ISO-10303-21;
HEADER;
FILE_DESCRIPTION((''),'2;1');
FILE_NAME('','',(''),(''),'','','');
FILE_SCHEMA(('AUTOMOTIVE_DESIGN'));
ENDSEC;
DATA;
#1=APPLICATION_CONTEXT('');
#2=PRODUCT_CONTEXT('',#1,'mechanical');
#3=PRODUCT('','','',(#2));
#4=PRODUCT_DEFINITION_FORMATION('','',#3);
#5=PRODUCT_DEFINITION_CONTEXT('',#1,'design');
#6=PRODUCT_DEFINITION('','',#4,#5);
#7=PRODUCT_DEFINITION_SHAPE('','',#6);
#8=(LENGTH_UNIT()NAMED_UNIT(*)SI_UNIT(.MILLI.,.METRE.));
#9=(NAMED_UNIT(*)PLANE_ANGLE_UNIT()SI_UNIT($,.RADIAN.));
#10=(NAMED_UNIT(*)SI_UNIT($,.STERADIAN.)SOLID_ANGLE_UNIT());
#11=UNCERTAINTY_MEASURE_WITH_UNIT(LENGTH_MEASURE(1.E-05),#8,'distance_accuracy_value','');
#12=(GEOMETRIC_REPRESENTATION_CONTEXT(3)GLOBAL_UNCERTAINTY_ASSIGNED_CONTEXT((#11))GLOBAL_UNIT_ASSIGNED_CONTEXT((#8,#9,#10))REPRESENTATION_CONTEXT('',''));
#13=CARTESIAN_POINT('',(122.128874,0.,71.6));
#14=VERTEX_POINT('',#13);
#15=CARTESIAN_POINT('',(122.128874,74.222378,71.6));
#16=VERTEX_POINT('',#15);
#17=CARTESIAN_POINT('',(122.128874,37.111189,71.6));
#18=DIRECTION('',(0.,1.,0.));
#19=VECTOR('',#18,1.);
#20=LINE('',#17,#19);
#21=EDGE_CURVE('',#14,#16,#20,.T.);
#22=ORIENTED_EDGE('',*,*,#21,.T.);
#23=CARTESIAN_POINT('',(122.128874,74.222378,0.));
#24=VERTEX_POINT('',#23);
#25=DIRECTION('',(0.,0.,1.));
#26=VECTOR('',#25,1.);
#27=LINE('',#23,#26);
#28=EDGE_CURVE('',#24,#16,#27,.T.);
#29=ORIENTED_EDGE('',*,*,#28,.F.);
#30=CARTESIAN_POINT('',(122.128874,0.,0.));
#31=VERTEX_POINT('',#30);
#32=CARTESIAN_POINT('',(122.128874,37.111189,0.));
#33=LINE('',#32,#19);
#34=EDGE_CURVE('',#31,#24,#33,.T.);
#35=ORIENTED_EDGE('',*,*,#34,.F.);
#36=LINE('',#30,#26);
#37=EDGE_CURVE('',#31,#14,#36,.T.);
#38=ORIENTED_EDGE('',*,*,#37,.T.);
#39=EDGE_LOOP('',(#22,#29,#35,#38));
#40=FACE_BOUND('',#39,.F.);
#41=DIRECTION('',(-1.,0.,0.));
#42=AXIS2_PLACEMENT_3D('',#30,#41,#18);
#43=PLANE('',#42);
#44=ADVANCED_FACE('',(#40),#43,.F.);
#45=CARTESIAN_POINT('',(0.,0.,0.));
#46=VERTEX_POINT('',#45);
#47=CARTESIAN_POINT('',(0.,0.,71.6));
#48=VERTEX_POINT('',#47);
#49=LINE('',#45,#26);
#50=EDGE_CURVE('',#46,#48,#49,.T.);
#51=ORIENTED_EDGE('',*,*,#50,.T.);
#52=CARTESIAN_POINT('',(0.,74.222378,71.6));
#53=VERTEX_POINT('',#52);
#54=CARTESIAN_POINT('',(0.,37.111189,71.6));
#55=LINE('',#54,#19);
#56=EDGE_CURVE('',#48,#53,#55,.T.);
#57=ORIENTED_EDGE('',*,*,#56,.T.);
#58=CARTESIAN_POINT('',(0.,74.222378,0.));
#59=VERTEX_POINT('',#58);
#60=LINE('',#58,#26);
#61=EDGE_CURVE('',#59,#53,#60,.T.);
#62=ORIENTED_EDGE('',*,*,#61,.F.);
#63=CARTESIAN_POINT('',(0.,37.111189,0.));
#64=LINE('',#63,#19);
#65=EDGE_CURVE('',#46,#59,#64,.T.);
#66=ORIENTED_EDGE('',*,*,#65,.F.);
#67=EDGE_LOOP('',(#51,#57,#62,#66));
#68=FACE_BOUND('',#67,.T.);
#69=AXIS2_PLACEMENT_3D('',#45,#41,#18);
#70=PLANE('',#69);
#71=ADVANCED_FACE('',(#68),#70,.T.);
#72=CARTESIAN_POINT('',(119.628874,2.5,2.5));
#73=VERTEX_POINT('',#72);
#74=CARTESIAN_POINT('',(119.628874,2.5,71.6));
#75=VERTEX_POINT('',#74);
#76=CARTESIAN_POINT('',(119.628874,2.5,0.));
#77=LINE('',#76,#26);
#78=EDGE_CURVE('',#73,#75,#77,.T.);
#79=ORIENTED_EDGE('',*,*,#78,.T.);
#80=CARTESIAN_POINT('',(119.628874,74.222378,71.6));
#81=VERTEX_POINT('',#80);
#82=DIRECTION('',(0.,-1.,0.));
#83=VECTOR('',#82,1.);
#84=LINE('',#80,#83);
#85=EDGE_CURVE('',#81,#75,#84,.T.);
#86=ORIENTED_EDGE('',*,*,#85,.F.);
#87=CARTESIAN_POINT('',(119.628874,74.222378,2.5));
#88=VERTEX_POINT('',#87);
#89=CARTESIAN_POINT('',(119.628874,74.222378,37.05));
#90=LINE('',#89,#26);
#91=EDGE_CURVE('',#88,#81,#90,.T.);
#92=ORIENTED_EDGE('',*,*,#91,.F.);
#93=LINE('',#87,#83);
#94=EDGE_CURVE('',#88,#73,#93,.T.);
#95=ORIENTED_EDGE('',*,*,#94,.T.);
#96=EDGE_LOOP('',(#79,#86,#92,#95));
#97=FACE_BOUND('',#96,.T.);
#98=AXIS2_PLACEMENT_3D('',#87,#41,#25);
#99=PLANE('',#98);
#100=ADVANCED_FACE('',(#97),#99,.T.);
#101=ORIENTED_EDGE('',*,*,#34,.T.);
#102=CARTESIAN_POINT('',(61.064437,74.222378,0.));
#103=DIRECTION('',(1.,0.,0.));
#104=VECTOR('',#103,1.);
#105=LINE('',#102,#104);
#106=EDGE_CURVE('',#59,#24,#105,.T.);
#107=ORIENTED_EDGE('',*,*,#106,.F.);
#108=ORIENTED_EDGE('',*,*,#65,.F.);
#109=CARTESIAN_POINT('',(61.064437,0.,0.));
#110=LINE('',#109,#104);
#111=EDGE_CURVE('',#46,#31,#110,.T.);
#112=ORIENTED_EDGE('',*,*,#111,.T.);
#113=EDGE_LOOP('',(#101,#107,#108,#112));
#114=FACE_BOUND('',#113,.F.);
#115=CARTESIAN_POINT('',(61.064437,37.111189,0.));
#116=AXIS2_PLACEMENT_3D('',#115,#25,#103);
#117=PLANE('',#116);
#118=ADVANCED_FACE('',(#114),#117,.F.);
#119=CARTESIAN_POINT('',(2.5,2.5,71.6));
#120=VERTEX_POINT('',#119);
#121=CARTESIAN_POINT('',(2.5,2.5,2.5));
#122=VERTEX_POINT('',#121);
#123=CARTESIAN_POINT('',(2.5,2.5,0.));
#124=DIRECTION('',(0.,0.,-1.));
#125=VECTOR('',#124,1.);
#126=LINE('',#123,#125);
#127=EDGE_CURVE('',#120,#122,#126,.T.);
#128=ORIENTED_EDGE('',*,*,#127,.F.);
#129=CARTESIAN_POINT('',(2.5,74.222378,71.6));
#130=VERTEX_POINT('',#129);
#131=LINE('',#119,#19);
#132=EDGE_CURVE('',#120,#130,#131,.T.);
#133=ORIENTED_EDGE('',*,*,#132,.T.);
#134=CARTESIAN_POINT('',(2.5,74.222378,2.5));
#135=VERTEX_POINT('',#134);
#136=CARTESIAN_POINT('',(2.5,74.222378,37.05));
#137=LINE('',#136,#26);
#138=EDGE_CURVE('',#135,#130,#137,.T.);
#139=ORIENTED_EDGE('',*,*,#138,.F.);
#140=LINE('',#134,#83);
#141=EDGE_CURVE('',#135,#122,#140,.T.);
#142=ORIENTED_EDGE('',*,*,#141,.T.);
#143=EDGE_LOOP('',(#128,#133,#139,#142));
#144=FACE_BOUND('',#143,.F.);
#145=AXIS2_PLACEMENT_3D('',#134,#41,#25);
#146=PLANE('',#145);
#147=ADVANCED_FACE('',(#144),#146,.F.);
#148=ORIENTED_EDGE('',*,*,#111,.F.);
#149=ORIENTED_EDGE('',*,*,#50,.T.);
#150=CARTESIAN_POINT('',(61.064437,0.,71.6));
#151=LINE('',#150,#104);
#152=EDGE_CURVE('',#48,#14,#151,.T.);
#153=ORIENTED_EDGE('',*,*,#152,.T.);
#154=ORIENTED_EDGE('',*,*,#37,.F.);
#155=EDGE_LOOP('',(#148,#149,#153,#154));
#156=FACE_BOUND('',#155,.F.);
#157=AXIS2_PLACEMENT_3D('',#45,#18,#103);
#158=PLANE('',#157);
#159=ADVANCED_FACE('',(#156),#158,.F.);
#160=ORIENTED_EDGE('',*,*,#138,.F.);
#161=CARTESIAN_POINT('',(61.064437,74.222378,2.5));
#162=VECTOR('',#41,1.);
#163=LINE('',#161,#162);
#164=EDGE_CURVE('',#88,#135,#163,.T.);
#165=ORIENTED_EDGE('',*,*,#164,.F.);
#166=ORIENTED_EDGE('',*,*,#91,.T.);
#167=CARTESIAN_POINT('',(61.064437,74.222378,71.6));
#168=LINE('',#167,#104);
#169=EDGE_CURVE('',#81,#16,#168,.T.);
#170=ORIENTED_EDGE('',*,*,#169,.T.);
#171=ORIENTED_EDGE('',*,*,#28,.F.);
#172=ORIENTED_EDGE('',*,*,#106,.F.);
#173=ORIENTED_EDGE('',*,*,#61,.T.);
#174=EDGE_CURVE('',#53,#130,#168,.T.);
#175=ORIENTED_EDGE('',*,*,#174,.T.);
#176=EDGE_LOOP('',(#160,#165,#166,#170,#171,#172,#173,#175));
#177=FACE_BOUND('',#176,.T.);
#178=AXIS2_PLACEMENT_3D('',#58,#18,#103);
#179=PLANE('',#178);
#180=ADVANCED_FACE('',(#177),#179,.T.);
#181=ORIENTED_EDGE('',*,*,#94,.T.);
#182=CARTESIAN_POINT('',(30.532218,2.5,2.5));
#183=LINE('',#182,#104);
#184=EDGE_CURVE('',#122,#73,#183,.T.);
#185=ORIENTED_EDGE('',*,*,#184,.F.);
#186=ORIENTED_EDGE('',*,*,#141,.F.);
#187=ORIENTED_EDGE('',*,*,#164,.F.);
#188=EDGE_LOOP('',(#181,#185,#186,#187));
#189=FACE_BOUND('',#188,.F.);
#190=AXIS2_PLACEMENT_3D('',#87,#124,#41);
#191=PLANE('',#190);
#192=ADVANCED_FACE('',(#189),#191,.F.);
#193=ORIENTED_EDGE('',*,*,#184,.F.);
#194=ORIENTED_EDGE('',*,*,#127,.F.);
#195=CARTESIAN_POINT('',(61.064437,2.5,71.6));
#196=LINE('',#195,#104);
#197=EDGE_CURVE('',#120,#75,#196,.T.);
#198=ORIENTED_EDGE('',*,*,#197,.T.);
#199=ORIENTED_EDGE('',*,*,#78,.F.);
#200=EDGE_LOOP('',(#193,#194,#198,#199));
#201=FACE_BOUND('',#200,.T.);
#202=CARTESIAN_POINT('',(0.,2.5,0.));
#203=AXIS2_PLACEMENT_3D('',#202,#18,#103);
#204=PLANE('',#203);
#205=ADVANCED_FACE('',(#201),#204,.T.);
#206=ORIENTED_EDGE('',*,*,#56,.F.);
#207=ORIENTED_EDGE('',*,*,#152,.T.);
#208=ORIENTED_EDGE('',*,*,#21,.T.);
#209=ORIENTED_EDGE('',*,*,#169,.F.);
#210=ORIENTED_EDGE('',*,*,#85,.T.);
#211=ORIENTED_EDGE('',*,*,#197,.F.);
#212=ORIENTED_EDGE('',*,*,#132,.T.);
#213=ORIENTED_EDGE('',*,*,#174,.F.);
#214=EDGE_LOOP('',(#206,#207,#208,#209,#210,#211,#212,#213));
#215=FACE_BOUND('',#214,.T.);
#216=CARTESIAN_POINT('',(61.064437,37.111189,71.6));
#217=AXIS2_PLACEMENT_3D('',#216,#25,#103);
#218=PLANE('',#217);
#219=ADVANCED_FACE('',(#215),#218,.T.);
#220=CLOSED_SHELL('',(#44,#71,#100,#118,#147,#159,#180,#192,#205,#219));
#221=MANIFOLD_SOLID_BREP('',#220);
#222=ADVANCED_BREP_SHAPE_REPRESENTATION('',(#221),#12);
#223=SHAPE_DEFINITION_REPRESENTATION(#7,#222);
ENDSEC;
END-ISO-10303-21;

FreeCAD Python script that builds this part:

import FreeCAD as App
import Part
import Sketcher

V = App.Vector
Q = App.Units.Quantity


def faces_at(feature, points):
    """Names of the faces that lie closest to the given points."""
    faces = feature.Shape.Faces
    near = lambda p: min(range(len(faces)), key=lambda i: faces[i].distToShape(Part.Vertex(*p))[0])
    return sorted({f"Face{near(p) + 1}" for p in points})

doc = App.newDocument("Part")
body = doc.addObject("PartDesign::Body", "Body")

# Sketch on XY plane
sketch1 = body.newObject("Sketcher::SketchObject", "Sketch")
sketch1.AttachmentSupport = (doc.getObject("XY_Plane"), [""])
sketch1.MapMode = "FlatFace"
sketch1.addGeometry(Part.LineSegment(V(0, 74, 0), V(0, 0, 0)), False)
sketch1.addGeometry(Part.LineSegment(V(0, 0, 0), V(122, 0, 0)), False)
sketch1.addGeometry(Part.LineSegment(V(122, 0, 0), V(122, 74, 0)), False)
sketch1.addGeometry(Part.LineSegment(V(122, 74, 0), V(0, 74, 0)), False)
sketch1.addConstraint(Sketcher.Constraint("Coincident", 0, 2, 1, 1))
sketch1.addConstraint(Sketcher.Constraint("Coincident", 1, 2, 2, 1))
sketch1.addConstraint(Sketcher.Constraint("Coincident", 2, 2, 3, 1))
sketch1.addConstraint(Sketcher.Constraint("Coincident", 3, 2, 0, 1))
sketch1.addConstraint(Sketcher.Constraint("Vertical", 0))
sketch1.addConstraint(Sketcher.Constraint("Horizontal", 1))
sketch1.addConstraint(Sketcher.Constraint("Vertical", 2))
sketch1.addConstraint(Sketcher.Constraint("Horizontal", 3))
sketch1.addConstraint(Sketcher.Constraint("Coincident", 0, 2, -1, 1))
sketch1.addConstraint(Sketcher.Constraint("DistanceY", 0, 2, 0, 1, Q("74.222378 mm")))
sketch1.addConstraint(Sketcher.Constraint("DistanceX", 1, 1, 1, 2, Q("122.128874 mm")))
pad1 = body.newObject("PartDesign::Pad", "Pad")
pad1.Profile = sketch1
pad1.Length = 71.6
doc.recompute()

thickness = body.newObject("PartDesign::Thickness", "Thickness")
thickness.Base = (pad1, faces_at(pad1, [(61.064, 37.111, 71.6)]))
thickness.Value = 2.5
thickness.Reversed = True
thickness.Join = "Arc"

# Sketch on XZ plane
sketch2 = body.newObject("Sketcher::SketchObject", "Sketch001")
sketch2.AttachmentSupport = (doc.getObject("XZ_Plane"), [""])
sketch2.MapMode = "FlatFace"
sketch2.AttachmentOffset = App.Placement(V(0, 0, -74.222378), App.Rotation())
sketch2.addGeometry(Part.LineSegment(V(120, 72, 0), V(120, 2, 0)), False)
sketch2.addGeometry(Part.LineSegment(V(120, 2, 0), V(2, 2, 0)), False)
sketch2.addGeometry(Part.LineSegment(V(2, 2, 0), V(2, 72, 0)), False)
sketch2.addGeometry(Part.LineSegment(V(2, 72, 0), V(120, 72, 0)), False)
sketch2.addConstraint(Sketcher.Constraint("Coincident", 0, 2, 1, 1))
sketch2.addConstraint(Sketcher.Constraint("Coincident", 1, 2, 2, 1))
sketch2.addConstraint(Sketcher.Constraint("Coincident", 2, 2, 3, 1))
sketch2.addConstraint(Sketcher.Constraint("Coincident", 3, 2, 0, 1))
sketch2.addConstraint(Sketcher.Constraint("Vertical", 0))
sketch2.addConstraint(Sketcher.Constraint("Horizontal", 1))
sketch2.addConstraint(Sketcher.Constraint("Vertical", 2))
sketch2.addConstraint(Sketcher.Constraint("Horizontal", 3))
sketch2.addConstraint(Sketcher.Constraint("DistanceY", 0, 2, 0, 1, Q("69.1 mm")))
sketch2.addConstraint(Sketcher.Constraint("DistanceY", -1, 1, 0, 2, Q("2.5 mm")))
sketch2.addConstraint(Sketcher.Constraint("DistanceX", -1, 1, 1, 2, Q("2.5 mm")))
sketch2.addConstraint(Sketcher.Constraint("DistanceX", 1, 2, 1, 1, Q("117.128874 mm")))
pocket1 = body.newObject("PartDesign::Pocket", "Pocket")
pocket1.Profile = sketch2
pocket1.Length = 25
pocket1.Reversed = True

doc.recompute()
